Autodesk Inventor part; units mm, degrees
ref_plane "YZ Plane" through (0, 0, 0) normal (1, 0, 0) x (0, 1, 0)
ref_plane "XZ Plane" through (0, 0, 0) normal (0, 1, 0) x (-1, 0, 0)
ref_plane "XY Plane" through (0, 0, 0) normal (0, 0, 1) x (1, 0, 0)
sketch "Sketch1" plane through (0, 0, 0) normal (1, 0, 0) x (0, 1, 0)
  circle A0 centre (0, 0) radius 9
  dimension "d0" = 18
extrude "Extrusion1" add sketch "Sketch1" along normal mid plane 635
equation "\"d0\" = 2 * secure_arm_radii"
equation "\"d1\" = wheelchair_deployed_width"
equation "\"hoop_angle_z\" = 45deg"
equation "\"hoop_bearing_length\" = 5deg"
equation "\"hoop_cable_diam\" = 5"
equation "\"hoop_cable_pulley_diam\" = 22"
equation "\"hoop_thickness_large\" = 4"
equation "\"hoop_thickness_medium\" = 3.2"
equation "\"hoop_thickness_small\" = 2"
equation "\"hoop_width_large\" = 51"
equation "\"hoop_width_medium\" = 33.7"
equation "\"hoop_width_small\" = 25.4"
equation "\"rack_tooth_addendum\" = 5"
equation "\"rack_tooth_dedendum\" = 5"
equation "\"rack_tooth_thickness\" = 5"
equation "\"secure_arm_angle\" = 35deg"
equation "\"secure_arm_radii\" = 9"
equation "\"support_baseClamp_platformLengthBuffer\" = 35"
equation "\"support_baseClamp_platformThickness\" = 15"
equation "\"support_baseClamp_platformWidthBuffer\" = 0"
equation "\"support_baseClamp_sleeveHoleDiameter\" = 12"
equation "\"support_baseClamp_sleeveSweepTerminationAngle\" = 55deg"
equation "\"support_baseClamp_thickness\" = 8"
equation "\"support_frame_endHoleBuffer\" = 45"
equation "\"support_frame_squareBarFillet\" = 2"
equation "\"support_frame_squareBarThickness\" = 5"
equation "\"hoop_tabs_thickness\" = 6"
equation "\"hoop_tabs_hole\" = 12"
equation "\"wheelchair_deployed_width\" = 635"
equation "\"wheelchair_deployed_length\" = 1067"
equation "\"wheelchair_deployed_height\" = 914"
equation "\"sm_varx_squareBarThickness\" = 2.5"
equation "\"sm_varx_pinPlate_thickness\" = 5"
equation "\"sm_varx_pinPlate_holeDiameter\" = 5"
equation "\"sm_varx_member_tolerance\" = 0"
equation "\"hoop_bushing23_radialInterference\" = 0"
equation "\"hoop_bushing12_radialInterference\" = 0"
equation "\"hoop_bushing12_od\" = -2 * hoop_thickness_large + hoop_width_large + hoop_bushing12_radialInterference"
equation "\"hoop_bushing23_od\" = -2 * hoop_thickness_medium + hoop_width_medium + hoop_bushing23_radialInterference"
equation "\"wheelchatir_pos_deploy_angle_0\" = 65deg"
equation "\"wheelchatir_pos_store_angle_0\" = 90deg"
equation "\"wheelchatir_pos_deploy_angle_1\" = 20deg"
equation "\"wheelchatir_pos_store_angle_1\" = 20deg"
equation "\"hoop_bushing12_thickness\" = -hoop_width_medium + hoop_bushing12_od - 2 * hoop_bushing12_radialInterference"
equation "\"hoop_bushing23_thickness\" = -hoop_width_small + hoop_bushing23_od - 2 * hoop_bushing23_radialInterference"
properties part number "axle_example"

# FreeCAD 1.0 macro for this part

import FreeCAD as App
import Part
import Sketcher

doc = App.newDocument("Part")
body = doc.addObject("PartDesign::Body", "Body")

sketch1 = body.newObject("Sketcher::SketchObject", "Sketch")
sketch1.AttachmentSupport = (doc.getObject("YZ_Plane"), [""])
sketch1.MapMode = "FlatFace"
sketch1.addGeometry(Part.Circle(App.Vector(0, 0, 0), App.Vector(0, 0, 1), 9), False)
sketch1.addConstraint(Sketcher.Constraint("Coincident", 0, 3, -1, 1))
sketch1.addConstraint(Sketcher.Constraint("Diameter", 0, 18.0))
pad1 = body.newObject("PartDesign::Pad", "Pad")
pad1.Profile = sketch1
pad1.Length = 635
pad1.Midplane = True

doc.recompute()
